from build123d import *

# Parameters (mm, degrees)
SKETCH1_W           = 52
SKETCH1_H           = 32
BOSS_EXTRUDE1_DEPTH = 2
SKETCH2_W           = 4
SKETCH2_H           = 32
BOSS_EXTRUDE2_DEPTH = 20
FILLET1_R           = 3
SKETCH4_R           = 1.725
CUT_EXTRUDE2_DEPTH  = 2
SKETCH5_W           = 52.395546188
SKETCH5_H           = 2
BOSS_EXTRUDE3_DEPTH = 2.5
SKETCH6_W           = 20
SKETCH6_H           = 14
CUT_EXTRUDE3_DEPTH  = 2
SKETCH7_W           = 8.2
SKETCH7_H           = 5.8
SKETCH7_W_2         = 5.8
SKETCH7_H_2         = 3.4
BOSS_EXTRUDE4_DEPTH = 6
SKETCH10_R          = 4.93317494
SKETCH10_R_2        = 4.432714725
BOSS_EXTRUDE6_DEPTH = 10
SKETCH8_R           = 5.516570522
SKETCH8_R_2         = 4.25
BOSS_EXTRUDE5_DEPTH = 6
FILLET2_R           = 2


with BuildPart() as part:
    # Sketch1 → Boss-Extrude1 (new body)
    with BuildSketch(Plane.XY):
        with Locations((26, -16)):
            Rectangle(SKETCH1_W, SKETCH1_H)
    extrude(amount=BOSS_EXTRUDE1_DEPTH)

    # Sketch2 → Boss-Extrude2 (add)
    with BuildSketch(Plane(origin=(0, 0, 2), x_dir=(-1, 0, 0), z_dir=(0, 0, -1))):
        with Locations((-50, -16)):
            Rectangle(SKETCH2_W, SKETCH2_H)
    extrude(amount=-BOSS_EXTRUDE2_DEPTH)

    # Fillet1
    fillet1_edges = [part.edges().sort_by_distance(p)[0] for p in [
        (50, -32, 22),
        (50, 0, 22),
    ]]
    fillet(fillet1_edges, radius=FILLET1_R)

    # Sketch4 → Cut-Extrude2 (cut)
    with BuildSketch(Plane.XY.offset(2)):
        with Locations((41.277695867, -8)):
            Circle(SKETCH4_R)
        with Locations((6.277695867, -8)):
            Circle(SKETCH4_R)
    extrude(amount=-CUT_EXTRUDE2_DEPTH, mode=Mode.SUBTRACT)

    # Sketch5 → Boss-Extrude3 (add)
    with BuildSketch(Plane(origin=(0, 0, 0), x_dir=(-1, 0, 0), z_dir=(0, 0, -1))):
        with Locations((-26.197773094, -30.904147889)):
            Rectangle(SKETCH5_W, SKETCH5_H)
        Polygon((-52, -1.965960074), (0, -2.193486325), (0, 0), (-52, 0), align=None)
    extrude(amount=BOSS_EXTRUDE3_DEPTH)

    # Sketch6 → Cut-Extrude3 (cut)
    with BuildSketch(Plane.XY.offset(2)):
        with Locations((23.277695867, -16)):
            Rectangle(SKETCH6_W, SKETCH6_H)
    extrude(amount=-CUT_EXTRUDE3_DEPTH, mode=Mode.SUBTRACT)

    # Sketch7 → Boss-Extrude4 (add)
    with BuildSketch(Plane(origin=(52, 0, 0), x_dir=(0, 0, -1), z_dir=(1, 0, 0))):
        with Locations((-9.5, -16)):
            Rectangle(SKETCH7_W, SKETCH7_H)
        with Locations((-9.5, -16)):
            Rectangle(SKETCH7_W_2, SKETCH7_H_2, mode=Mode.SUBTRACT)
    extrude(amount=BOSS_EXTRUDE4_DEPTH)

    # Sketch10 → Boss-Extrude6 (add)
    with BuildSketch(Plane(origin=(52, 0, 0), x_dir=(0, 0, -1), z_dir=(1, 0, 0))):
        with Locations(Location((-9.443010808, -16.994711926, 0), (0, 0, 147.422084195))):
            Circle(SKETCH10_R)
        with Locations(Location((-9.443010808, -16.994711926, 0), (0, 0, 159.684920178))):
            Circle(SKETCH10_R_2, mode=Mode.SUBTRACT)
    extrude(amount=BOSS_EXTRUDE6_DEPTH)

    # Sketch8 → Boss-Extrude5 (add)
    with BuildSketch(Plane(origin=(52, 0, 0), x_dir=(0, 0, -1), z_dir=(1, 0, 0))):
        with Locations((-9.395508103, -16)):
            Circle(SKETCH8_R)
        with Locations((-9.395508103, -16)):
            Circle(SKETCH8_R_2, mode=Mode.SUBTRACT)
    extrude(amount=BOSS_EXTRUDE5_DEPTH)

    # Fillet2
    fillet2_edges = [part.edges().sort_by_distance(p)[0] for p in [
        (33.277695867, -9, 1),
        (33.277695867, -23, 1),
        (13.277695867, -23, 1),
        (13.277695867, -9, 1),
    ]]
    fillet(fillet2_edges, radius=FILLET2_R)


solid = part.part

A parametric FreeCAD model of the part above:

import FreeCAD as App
import Part
import Sketcher
from FreeCAD import Vector
Q = App.Units.Quantity


def edges_at(feature, points):
    """Names of the edges that pass closest to the given points."""
    edges = feature.Shape.Edges
    near = lambda p: min(range(len(edges)), key=lambda i: edges[i].distToShape(Part.Vertex(*p))[0])
    return sorted({f"Edge{near(p) + 1}" for p in points})


def add_polygon(sketch, points):
    """Adds a closed chain of lines whose ends are joined by coincident constraints."""
    first, n = sketch.GeometryCount, len(points)
    for a, b in zip(points, points[1:] + points[:1]):
        sketch.addGeometry(Part.LineSegment(App.Vector(*a, 0), App.Vector(*b, 0)), False)
    for i in range(n):
        sketch.addConstraint(Sketcher.Constraint("Coincident", first + i, 2, first + (i + 1) % n, 1))

doc = App.newDocument("Part")
params = doc.addObject("Spreadsheet::Sheet", "Params")
for row, (alias, value) in enumerate([
    ("sketch1_width", "52 mm"),
    ("sketch1_height", "32 mm"),
    ("pad1_length", "2 mm"),
    ("sketch2_width", "4 mm"),
    ("sketch2_height", "32 mm"),
    ("pad2_length", "20 mm"),
    ("fillet_radius", "3 mm"),
    ("sketch3_diameter", "3.45 mm"),
    ("pocket1_length", "2 mm"),
    ("sketch4_width", "52 mm"),
    ("sketch4_height", "2 mm"),
    ("pad3_length", "2.5 mm"),
    ("sketch5_width", "20 mm"),
    ("sketch5_height", "14 mm"),
    ("pocket2_length", "2 mm"),
    ("sketch6_width", "5.8 mm"),
    ("sketch6_width2", "3.4 mm"),
    ("sketch6_height", "8.2 mm"),
    ("pad4_length", "6 mm"),
    ("pad5_length", "10 mm"),
    ("sketch8_diameter", "8.5 mm"),
    ("pad6_length", "6 mm"),
    ("fillet2_radius", "2 mm"),
], start=1):
    params.set(f"A{row}", alias)
    params.set(f"B{row}", "=" + value)
    params.setAlias(f"B{row}", alias)

body = doc.addObject("PartDesign::Body", "Body")

sketch1 = doc.addObject("Sketcher::SketchObject", "Sketch")
body.addObject(sketch1)
sketch1.AttachmentSupport = (doc.XY_Plane, [""])
sketch1.MapMode = "FlatFace"
add_polygon(sketch1, [(0, 0), (0, -32), (52, -32), (52, 0)])
sketch1.addConstraint(Sketcher.Constraint("Vertical", 0))
sketch1.addConstraint(Sketcher.Constraint("Horizontal", 1))
sketch1.addConstraint(Sketcher.Constraint("Vertical", 2))
sketch1.addConstraint(Sketcher.Constraint("Horizontal", 3))
sketch1.addConstraint(Sketcher.Constraint("Coincident", 3, 2, -1, 1))
sketch1.addConstraint(Sketcher.Constraint("DistanceX", 1, 1, 1, 2, Q("52 mm")))
sketch1.addConstraint(Sketcher.Constraint("DistanceY", 0, 2, 0, 1, Q("32 mm")))
sketch1.setExpression("Constraints[9]", "Params.sketch1_width")
sketch1.setExpression("Constraints[10]", "Params.sketch1_height")
pad1 = doc.addObject("PartDesign::Pad", "Pad")
body.addObject(pad1)
pad1.Profile = sketch1
pad1.setExpression("Length", "Params.pad1_length")

sketch2 = doc.addObject("Sketcher::SketchObject", "Sketch001")
body.addObject(sketch2)
sketch2.AttachmentSupport = (doc.XY_Plane, [""])
sketch2.MapMode = "FlatFace"
sketch2.AttachmentOffset = App.Placement(Vector(0, 0, 2), App.Rotation())
add_polygon(sketch2, [(52, 0), (52, -32), (48, -32), (48, 0)])
sketch2.addConstraint(Sketcher.Constraint("Vertical", 0))
sketch2.addConstraint(Sketcher.Constraint("Horizontal", 1))
sketch2.addConstraint(Sketcher.Constraint("Vertical", 2))
sketch2.addConstraint(Sketcher.Constraint("Horizontal", 3))
sketch2.addConstraint(Sketcher.Constraint("PointOnObject", 2, 2, -1))
sketch2.addConstraint(Sketcher.Constraint("DistanceX", 1, 2, 1, 1, Q("4 mm")))
sketch2.addConstraint(Sketcher.Constraint("DistanceY", 0, 2, 0, 1, Q("32 mm")))
sketch2.addConstraint(Sketcher.Constraint("DistanceX", -1, 1, 0, 2, Q("52 mm")))
sketch2.setExpression("Constraints[9]", "Params.sketch2_width")
sketch2.setExpression("Constraints[10]", "Params.sketch2_height")
pad2 = doc.addObject("PartDesign::Pad", "Pad001")
body.addObject(pad2)
pad2.Profile = sketch2
pad2.setExpression("Length", "Params.pad2_length")
doc.recompute()

fillet = doc.addObject("PartDesign::Fillet", "Fillet")
body.addObject(fillet)
fillet.Base = (pad2, edges_at(pad2, [(50, -32, 22), (50, 0, 22)]))
fillet.setExpression("Radius", "Params.fillet_radius")

sketch3 = doc.addObject("Sketcher::SketchObject", "Sketch002")
body.addObject(sketch3)
sketch3.AttachmentSupport = (doc.XY_Plane, [""])
sketch3.MapMode = "FlatFace"
sketch3.AttachmentOffset = App.Placement(Vector(0, 0, 2), App.Rotation())
sketch3.addGeometry(Part.Circle(Vector(41.3, -8, 0), Vector(0, 0, 1), 1.7), False)
sketch3.addGeometry(Part.Circle(Vector(6.3, -8, 0), Vector(0, 0, 1), 1.7), False)
sketch3.addConstraint(Sketcher.Constraint("Equal", 0, 1))
sketch3.addConstraint(Sketcher.Constraint("Horizontal", 0, 3, 1, 3))
sketch3.addConstraint(Sketcher.Constraint("Diameter", 0, Q("3.45 mm")))
sketch3.addConstraint(Sketcher.Constraint("DistanceY", 0, 3, -1, 1, Q("8 mm")))
sketch3.addConstraint(Sketcher.Constraint("DistanceX", 1, 3, 0, 3, Q("35 mm")))
sketch3.addConstraint(Sketcher.Constraint("DistanceX", -1, 1, 0, 3, Q("41.277696 mm")))
sketch3.setExpression("Constraints[2]", "Params.sketch3_diameter")
pocket1 = doc.addObject("PartDesign::Pocket", "Pocket")
body.addObject(pocket1)
pocket1.Profile = sketch3
pocket1.setExpression("Length", "Params.pocket1_length")

sketch4 = doc.addObject("Sketcher::SketchObject", "Sketch003")
body.addObject(sketch4)
sketch4.AttachmentSupport = (doc.XY_Plane, [""])
sketch4.MapMode = "FlatFace"
add_polygon(sketch4, [(52.4, -29.9), (52.4, -31.9), (0, -31.9), (0, -29.9)])
add_polygon(sketch4, [(52, -2), (0, -2.2), (0, 0), (52, 0)])
sketch4.addConstraint(Sketcher.Constraint("Vertical", 0))
sketch4.addConstraint(Sketcher.Constraint("Horizontal", 1))
sketch4.addConstraint(Sketcher.Constraint("Vertical", 2))
sketch4.addConstraint(Sketcher.Constraint("Horizontal", 3))
sketch4.addConstraint(Sketcher.Constraint("Vertical", 5))
sketch4.addConstraint(Sketcher.Constraint("Horizontal", 6))
sketch4.addConstraint(Sketcher.Constraint("Vertical", 7))
sketch4.addConstraint(Sketcher.Constraint("Coincident", 5, 2, -1, 1))
sketch4.addConstraint(Sketcher.Constraint("PointOnObject", 1, 2, -2))
sketch4.addConstraint(Sketcher.Constraint("DistanceX", 6, 1, 6, 2, Q("52 mm")))
sketch4.addConstraint(Sketcher.Constraint("DistanceY", 0, 2, 0, 1, Q("2 mm")))
sketch4.addConstraint(Sketcher.Constraint("DistanceY", 7, 2, 7, 1, Q("1.96596 mm")))
sketch4.addConstraint(Sketcher.Constraint("DistanceX", 1, 2, 1, 1, Q("52.395546 mm")))
sketch4.addConstraint(Sketcher.Constraint("DistanceY", 5, 1, 5, 2, Q("2.193486 mm")))
sketch4.addConstraint(Sketcher.Constraint("DistanceY", 2, 2, 4, 2, Q("27.710662 mm")))
sketch4.setExpression("Constraints[17]", "Params.sketch4_width")
sketch4.setExpression("Constraints[18]", "Params.sketch4_height")
pad3 = doc.addObject("PartDesign::Pad", "Pad002")
body.addObject(pad3)
pad3.Profile = sketch4
pad3.setExpression("Length", "Params.pad3_length")
pad3.Reversed = True

sketch5 = doc.addObject("Sketcher::SketchObject", "Sketch004")
body.addObject(sketch5)
sketch5.AttachmentSupport = (doc.XY_Plane, [""])
sketch5.MapMode = "FlatFace"
sketch5.AttachmentOffset = App.Placement(Vector(0, 0, 2), App.Rotation())
add_polygon(sketch5, [(13, -9), (13, -23), (33, -23), (33, -9)])
sketch5.addConstraint(Sketcher.Constraint("Vertical", 0))
sketch5.addConstraint(Sketcher.Constraint("Horizontal", 1))
sketch5.addConstraint(Sketcher.Constraint("Vertical", 2))
sketch5.addConstraint(Sketcher.Constraint("Horizontal", 3))
sketch5.addConstraint(Sketcher.Constraint("DistanceX", 1, 1, 1, 2, Q("20 mm")))
sketch5.addConstraint(Sketcher.Constraint("DistanceY", 0, 2, 0, 1, Q("14 mm")))
sketch5.addConstraint(Sketcher.Constraint("DistanceY", 0, 2, -1, 1, Q("23 mm")))
sketch5.addConstraint(Sketcher.Constraint("DistanceX", -1, 1, 0, 2, Q("13.277696 mm")))
sketch5.setExpression("Constraints[8]", "Params.sketch5_width")
sketch5.setExpression("Constraints[9]", "Params.sketch5_height")
pocket2 = doc.addObject("PartDesign::Pocket", "Pocket001")
body.addObject(pocket2)
pocket2.Profile = sketch5
pocket2.setExpression("Length", "Params.pocket2_length")

sketch6 = doc.addObject("Sketcher::SketchObject", "Sketch005")
body.addObject(sketch6)
sketch6.AttachmentSupport = (doc.YZ_Plane, [""])
sketch6.MapMode = "FlatFace"
sketch6.AttachmentOffset = App.Placement(Vector(0, 0, 52), App.Rotation())
add_polygon(sketch6, [(-13.1, 13.6), (-18.9, 13.6), (-18.9, 5.4), (-13.1, 5.4)])
add_polygon(sketch6, [(-17.7, 6.6), (-17.7, 12.4), (-14.3, 12.4), (-14.3, 6.6)])
sketch6.addConstraint(Sketcher.Constraint("Horizontal", 0))
sketch6.addConstraint(Sketcher.Constraint("Vertical", 1))
sketch6.addConstraint(Sketcher.Constraint("Horizontal", 2))
sketch6.addConstraint(Sketcher.Constraint("Vertical", 3))
sketch6.addConstraint(Sketcher.Constraint("Vertical", 4))
sketch6.addConstraint(Sketcher.Constraint("Horizontal", 5))
sketch6.addConstraint(Sketcher.Constraint("Vertical", 6))
sketch6.addConstraint(Sketcher.Constraint("Horizontal", 7))
sketch6.addConstraint(Sketcher.Constraint("Equal", 2, 4))
sketch6.addConstraint(Sketcher.Constraint("DistanceX", 0, 2, 0, 1, Q("5.8 mm")))
sketch6.addConstraint(Sketcher.Constraint("DistanceX", 5, 1, 5, 2, Q("3.4 mm")))
sketch6.addConstraint(Sketcher.Constraint("DistanceY", 1, 2, 1, 1, Q("8.2 mm")))
sketch6.addConstraint(Sketcher.Constraint("DistanceY", 1, 2, 4, 2, Q("7 mm")))
sketch6.addConstraint(Sketcher.Constraint("DistanceX", 0, 2, -1, 1, Q("18.9 mm")))
sketch6.addConstraint(Sketcher.Constraint("DistanceY", -1, 1, 0, 2, Q("13.6 mm")))
sketch6.addConstraint(Sketcher.Constraint("DistanceX", 4, 2, -1, 1, Q("17.7 mm")))
sketch6.setExpression("Constraints[17]", "Params.sketch6_width")
sketch6.setExpression("Constraints[18]", "Params.sketch6_width2")
sketch6.setExpression("Constraints[19]", "Params.sketch6_height")
pad4 = doc.addObject("PartDesign::Pad", "Pad003")
body.addObject(pad4)
pad4.Profile = sketch6
pad4.setExpression("Length", "Params.pad4_length")

sketch7 = doc.addObject("Sketcher::SketchObject", "Sketch006")
body.addObject(sketch7)
sketch7.AttachmentSupport = (doc.YZ_Plane, [""])
sketch7.MapMode = "FlatFace"
sketch7.AttachmentOffset = App.Placement(Vector(0, 0, 52), App.Rotation())
sketch7.addGeometry(Part.Circle(Vector(-17, 9.4, 0), Vector(0, 0, 1), 4.9), False)
sketch7.addGeometry(Part.Circle(Vector(-17, 9.4, 0), Vector(0, 0, 1), 4.4), False)
sketch7.addConstraint(Sketcher.Constraint("Coincident", 1, 3, 0, 3))
sketch7.addConstraint(Sketcher.Constraint("Diameter", 0, Q("9.86635 mm")))
sketch7.addConstraint(Sketcher.Constraint("Diameter", 1, Q("8.865429 mm")))
sketch7.addConstraint(Sketcher.Constraint("DistanceX", 0, 3, -1, 1, Q("16.994712 mm")))
sketch7.addConstraint(Sketcher.Constraint("DistanceY", -1, 1, 0, 3, Q("9.443011 mm")))
pad5 = doc.addObject("PartDesign::Pad", "Pad004")
body.addObject(pad5)
pad5.Profile = sketch7
pad5.setExpression("Length", "Params.pad5_length")

sketch8 = doc.addObject("Sketcher::SketchObject", "Sketch007")
body.addObject(sketch8)
sketch8.AttachmentSupport = (doc.YZ_Plane, [""])
sketch8.MapMode = "FlatFace"
sketch8.AttachmentOffset = App.Placement(Vector(0, 0, 52), App.Rotation())
sketch8.addGeometry(Part.Circle(Vector(-16, 9.4, 0), Vector(0, 0, 1), 5.5), False)
sketch8.addGeometry(Part.Circle(Vector(-16, 9.4, 0), Vector(0, 0, 1), 4.2), False)
sketch8.addConstraint(Sketcher.Constraint("Coincident", 1, 3, 0, 3))
sketch8.addConstraint(Sketcher.Constraint("Diameter", 1, Q("8.5 mm")))
sketch8.addConstraint(Sketcher.Constraint("DistanceX", 0, 3, -1, 1, Q("16 mm")))
sketch8.addConstraint(Sketcher.Constraint("Diameter", 0, Q("11.033141 mm")))
sketch8.addConstraint(Sketcher.Constraint("DistanceY", -1, 1, 0, 3, Q("9.395508 mm")))
sketch8.setExpression("Constraints[1]", "Params.sketch8_diameter")
pad6 = doc.addObject("PartDesign::Pad", "Pad005")
body.addObject(pad6)
pad6.Profile = sketch8
pad6.setExpression("Length", "Params.pad6_length")
doc.recompute()

fillet2 = doc.addObject("PartDesign::Fillet", "Fillet001")
body.addObject(fillet2)
fillet2.Base = (pad6, edges_at(pad6, [
    (33.278, -9, 1),
    (33.278, -23, 1),
    (13.278, -23, 1),
    (13.278, -9, 1),
]))
fillet2.setExpression("Radius", "Params.fillet2_radius")

doc.recompute()
